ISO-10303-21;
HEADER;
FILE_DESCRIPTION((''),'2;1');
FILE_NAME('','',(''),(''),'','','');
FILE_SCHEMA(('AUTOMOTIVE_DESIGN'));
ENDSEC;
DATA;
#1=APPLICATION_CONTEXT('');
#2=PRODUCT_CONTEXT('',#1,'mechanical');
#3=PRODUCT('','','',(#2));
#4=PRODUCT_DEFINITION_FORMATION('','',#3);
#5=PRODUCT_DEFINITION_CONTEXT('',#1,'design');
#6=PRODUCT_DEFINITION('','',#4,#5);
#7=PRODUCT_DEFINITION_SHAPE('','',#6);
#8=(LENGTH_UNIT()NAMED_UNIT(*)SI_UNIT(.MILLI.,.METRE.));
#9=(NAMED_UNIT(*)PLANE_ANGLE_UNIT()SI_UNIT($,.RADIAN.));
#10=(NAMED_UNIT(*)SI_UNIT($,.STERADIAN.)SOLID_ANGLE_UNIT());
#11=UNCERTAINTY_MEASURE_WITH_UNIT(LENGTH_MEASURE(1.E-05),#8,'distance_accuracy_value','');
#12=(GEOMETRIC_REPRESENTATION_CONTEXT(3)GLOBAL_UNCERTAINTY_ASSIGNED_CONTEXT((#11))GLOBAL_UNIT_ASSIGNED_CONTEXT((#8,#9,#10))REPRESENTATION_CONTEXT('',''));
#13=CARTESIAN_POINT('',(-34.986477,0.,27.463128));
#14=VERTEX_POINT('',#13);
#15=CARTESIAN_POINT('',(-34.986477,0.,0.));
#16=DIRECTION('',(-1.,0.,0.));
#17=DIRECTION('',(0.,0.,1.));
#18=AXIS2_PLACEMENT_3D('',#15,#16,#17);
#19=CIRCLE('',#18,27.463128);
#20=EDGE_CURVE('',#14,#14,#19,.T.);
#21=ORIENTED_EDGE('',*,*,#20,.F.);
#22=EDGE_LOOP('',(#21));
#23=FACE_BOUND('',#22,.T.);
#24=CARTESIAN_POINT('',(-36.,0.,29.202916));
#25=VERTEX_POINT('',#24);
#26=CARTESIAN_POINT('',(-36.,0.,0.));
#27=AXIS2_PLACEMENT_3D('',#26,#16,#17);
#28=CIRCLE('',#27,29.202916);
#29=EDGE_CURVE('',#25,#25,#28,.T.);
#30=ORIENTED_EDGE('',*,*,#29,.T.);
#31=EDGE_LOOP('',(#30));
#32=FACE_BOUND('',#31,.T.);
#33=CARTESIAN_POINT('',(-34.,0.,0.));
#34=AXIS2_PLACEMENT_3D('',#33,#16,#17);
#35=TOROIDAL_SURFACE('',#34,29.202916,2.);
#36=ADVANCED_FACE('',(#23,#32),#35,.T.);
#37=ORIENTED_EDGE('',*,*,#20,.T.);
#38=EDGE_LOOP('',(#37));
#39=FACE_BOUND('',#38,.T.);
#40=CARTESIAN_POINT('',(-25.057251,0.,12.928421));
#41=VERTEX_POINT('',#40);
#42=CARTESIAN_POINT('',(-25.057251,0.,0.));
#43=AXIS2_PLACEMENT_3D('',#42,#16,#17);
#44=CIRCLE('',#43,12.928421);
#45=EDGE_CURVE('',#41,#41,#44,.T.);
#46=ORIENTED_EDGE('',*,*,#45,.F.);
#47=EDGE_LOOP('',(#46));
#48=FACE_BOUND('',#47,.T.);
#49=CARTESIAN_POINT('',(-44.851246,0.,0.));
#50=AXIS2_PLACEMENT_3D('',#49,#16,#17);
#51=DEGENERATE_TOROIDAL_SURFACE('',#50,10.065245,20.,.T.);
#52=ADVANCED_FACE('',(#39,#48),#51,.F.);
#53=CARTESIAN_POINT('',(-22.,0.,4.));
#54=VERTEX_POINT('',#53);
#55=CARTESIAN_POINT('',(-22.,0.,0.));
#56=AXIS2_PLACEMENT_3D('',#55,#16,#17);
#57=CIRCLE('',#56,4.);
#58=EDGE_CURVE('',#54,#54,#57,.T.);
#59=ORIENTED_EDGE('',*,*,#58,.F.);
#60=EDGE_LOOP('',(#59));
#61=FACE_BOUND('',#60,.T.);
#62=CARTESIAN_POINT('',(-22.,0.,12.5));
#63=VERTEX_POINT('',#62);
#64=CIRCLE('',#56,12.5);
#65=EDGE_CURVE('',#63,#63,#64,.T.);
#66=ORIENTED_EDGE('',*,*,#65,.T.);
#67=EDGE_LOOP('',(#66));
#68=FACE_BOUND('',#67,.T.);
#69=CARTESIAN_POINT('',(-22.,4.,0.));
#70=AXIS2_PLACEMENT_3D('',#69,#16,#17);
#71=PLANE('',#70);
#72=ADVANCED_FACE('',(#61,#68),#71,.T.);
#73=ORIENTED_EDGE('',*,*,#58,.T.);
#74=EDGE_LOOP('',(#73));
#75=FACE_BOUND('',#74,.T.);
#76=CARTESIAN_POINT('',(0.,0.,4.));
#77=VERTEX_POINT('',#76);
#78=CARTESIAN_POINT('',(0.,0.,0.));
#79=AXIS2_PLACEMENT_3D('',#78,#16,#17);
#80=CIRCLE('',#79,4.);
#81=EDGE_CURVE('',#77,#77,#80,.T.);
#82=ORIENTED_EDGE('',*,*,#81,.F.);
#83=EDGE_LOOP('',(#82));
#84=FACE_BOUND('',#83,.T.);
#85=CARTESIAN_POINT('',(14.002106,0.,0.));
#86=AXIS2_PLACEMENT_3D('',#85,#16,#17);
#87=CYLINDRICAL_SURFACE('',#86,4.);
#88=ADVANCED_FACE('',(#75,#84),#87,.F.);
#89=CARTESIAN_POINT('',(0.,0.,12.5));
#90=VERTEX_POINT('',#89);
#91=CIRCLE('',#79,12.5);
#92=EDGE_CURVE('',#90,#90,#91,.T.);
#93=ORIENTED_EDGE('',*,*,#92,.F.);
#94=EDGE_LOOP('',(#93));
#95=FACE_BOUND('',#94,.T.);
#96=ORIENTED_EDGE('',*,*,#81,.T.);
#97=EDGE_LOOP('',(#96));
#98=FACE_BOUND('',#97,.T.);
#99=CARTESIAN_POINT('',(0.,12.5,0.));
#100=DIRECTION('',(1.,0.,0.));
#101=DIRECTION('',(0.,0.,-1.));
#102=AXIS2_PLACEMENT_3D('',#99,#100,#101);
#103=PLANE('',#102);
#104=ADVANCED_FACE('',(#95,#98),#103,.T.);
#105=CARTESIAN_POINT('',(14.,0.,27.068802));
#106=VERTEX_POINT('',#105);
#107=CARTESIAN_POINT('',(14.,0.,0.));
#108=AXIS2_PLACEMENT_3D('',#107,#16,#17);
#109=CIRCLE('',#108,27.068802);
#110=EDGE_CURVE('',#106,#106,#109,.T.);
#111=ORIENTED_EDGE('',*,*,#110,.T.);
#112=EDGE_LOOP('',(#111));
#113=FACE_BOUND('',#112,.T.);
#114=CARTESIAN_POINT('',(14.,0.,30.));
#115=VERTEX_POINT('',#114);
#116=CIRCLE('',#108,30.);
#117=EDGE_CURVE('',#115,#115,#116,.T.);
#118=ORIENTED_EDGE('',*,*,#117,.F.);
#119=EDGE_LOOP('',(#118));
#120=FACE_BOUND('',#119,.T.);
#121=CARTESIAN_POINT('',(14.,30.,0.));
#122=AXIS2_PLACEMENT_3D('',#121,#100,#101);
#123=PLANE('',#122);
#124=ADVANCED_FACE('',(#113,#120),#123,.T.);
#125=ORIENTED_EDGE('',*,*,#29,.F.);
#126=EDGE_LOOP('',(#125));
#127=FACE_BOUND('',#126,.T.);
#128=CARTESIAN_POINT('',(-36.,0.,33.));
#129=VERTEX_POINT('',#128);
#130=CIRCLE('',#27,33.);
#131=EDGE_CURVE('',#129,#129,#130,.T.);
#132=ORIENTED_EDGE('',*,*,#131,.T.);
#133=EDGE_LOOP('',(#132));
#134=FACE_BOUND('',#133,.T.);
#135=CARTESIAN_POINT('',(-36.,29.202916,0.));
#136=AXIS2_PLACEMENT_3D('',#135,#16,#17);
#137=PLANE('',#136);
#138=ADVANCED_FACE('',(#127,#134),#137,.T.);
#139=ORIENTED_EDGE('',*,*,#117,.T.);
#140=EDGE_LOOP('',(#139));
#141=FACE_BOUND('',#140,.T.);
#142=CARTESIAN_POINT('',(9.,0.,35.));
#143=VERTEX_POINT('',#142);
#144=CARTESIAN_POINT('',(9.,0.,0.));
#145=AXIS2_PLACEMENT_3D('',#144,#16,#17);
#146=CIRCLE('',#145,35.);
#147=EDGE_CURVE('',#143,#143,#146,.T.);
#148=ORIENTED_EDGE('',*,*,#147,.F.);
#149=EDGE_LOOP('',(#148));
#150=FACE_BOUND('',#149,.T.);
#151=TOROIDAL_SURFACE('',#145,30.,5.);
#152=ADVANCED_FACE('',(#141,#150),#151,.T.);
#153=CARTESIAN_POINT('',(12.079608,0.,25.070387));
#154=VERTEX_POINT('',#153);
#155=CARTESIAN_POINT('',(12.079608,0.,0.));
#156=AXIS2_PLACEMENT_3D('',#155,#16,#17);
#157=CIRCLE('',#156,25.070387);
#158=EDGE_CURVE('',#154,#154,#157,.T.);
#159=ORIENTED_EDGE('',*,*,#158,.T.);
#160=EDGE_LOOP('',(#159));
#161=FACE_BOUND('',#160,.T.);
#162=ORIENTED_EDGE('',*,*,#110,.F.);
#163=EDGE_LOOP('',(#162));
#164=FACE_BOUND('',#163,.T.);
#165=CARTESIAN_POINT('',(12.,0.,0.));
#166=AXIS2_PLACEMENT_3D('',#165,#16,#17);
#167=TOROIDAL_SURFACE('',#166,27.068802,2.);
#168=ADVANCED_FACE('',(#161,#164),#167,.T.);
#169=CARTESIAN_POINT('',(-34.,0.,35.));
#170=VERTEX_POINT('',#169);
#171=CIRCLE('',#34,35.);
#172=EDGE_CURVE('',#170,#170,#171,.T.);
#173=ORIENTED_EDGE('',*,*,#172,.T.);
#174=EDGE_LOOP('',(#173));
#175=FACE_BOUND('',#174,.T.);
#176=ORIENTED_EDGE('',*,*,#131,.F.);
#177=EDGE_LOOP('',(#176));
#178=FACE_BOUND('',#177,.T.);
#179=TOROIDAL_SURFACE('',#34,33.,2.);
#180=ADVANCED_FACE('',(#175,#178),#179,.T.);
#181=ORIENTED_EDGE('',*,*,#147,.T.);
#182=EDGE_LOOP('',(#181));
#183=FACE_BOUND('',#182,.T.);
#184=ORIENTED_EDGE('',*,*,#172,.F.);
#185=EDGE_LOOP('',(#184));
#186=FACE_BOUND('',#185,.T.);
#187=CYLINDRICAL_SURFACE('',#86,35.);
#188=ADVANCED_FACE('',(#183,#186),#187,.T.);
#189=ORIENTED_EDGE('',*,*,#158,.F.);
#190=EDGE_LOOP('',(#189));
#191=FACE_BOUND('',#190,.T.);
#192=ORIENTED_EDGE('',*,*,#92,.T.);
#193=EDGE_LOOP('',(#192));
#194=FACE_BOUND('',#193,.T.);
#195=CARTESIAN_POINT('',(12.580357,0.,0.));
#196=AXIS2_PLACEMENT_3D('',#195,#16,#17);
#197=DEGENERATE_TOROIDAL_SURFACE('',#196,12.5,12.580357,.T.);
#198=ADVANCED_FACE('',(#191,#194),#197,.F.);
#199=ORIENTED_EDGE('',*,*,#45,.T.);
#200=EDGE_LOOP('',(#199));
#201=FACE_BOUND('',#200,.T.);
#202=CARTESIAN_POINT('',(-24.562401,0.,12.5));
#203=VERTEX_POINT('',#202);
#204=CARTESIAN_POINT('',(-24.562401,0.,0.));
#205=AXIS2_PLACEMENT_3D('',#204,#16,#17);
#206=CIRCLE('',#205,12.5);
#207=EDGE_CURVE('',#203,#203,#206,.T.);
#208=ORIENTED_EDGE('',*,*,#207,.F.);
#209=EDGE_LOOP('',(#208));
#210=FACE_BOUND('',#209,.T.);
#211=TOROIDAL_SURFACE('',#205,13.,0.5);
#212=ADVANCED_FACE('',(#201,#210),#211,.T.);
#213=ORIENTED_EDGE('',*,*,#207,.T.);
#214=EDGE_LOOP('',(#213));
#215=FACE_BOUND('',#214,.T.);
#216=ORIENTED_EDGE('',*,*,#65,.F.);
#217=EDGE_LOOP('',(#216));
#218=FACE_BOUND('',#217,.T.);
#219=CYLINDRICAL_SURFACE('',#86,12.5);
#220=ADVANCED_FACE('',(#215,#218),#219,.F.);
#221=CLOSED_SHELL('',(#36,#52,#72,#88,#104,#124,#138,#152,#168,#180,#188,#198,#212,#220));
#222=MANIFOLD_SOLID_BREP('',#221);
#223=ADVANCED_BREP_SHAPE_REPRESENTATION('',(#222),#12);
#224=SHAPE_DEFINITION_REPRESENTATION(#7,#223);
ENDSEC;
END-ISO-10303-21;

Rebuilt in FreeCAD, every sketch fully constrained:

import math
import FreeCAD as App
import Part
import Sketcher
from FreeCAD import Vector

doc = App.newDocument("Part")
body = doc.addObject("PartDesign::Body", "Body")

# Sketch on XY plane
sketch1 = body.newObject("Sketcher::SketchObject", "Sketch")
sketch1.AttachmentSupport = (doc.getObject("XY_Plane"), [""])
sketch1.MapMode = "FlatFace"
sketch1.addGeometry(Part.LineSegment(Vector(0, 4, 0), Vector(-22, 4, 0)), False)
sketch1.addGeometry(Part.LineSegment(Vector(-22, 4, 0), Vector(-22, 12.5, 0)), False)
sketch1.addGeometry(Part.LineSegment(Vector(-22, 12.5, 0), Vector(-24.6, 12.5, 0)), False)
sketch1.addGeometry(Part.ArcOfCircle(Part.Circle(Vector(-24.6, 13, 0), Vector(0, 0, 1), 0.5), math.radians(-172), math.radians(-90)), False)
sketch1.addGeometry(Part.ArcOfCircle(Part.Circle(Vector(-44.9, 10.1, 0), Vector(0, 0, 1), 20), math.radians(8), math.radians(60)), False)
sketch1.addGeometry(Part.ArcOfCircle(Part.Circle(Vector(-34, 29.2, 0), Vector(0, 0, 1), 2), math.radians(180), math.radians(240)), False)
sketch1.addGeometry(Part.LineSegment(Vector(-36, 29.2, 0), Vector(-36, 33, 0)), False)
sketch1.addGeometry(Part.ArcOfCircle(Part.Circle(Vector(-34, 33, 0), Vector(0, 0, 1), 2), math.radians(90), math.radians(180)), False)
sketch1.addGeometry(Part.LineSegment(Vector(-34, 35, 0), Vector(9, 35, 0)), False)
sketch1.addGeometry(Part.ArcOfCircle(Part.Circle(Vector(9, 30, 0), Vector(0, 0, 1), 5), math.radians(0), math.radians(90)), False)
sketch1.addGeometry(Part.LineSegment(Vector(14, 30, 0), Vector(14, 27.1, 0)), False)
sketch1.addGeometry(Part.ArcOfCircle(Part.Circle(Vector(12, 27.1, 0), Vector(0, 0, 1), 2), math.radians(-88), math.radians(0)), False)
sketch1.addGeometry(Part.ArcOfCircle(Part.Circle(Vector(12.6, 12.5, 0), Vector(0, 0, 1), 12.6), math.radians(92), math.radians(180)), False)
sketch1.addGeometry(Part.LineSegment(Vector(0, 12.5, 0), Vector(0, 4, 0)), False)
sketch1.addConstraint(Sketcher.Constraint("Coincident", 0, 2, 1, 1))
sketch1.addConstraint(Sketcher.Constraint("Coincident", 1, 2, 2, 1))
sketch1.addConstraint(Sketcher.Constraint("Tangent", 2, 2, 3, 2))
sketch1.addConstraint(Sketcher.Constraint("Tangent", 3, 1, 4, 1))
sketch1.addConstraint(Sketcher.Constraint("Tangent", 4, 2, 5, 2))
sketch1.addConstraint(Sketcher.Constraint("Tangent", 5, 1, 6, 1))
sketch1.addConstraint(Sketcher.Constraint("Tangent", 6, 2, 7, 2))
sketch1.addConstraint(Sketcher.Constraint("Tangent", 7, 1, 8, 1))
sketch1.addConstraint(Sketcher.Constraint("Tangent", 8, 2, 9, 2))
sketch1.addConstraint(Sketcher.Constraint("Tangent", 9, 1, 10, 1))
sketch1.addConstraint(Sketcher.Constraint("Tangent", 10, 2, 11, 2))
sketch1.addConstraint(Sketcher.Constraint("Tangent", 11, 1, 12, 1))
sketch1.addConstraint(Sketcher.Constraint("Tangent", 12, 2, 13, 1))
sketch1.addConstraint(Sketcher.Constraint("Coincident", 13, 2, 0, 1))
sketch1.addConstraint(Sketcher.Constraint("Horizontal", 0))
sketch1.addConstraint(Sketcher.Constraint("Vertical", 1))
sketch1.addConstraint(Sketcher.Constraint("Horizontal", 2))
sketch1.addConstraint(Sketcher.Constraint("Vertical", 6))
sketch1.addConstraint(Sketcher.Constraint("Horizontal", 8))
sketch1.addConstraint(Sketcher.Constraint("Vertical", 10))
sketch1.addConstraint(Sketcher.Constraint("Vertical", 13))
sketch1.addConstraint(Sketcher.Constraint("Equal", 5, 7))
sketch1.addConstraint(Sketcher.Constraint("Equal", 7, 11))
sketch1.addConstraint(Sketcher.Constraint("PointOnObject", 12, 2, -2))
sketch1.addConstraint(Sketcher.Constraint("Horizontal", 12, 3, 1, 2))
sketch1.addConstraint(Sketcher.Constraint("Radius", 4, 20.0))
sketch1.addConstraint(Sketcher.Constraint("Radius", 5, 2.0))
sketch1.addConstraint(Sketcher.Constraint("Radius", 9, 5.0))
sketch1.addConstraint(Sketcher.Constraint("Radius", 3, 0.5))
sketch1.addConstraint(Sketcher.Constraint("DistanceX", 0, 2, 0, 1, 22.0))
sketch1.addConstraint(Sketcher.Constraint("DistanceX", 8, 1, 8, 2, 43.0))
sketch1.addConstraint(Sketcher.Constraint("DistanceY", 1, 1, 1, 2, 8.5))
sketch1.addConstraint(Sketcher.Constraint("DistanceY", -1, 1, 3, 3, 13.0))
sketch1.addConstraint(Sketcher.Constraint("DistanceX", 5, 3, -1, 1, 34.0))
sketch1.addConstraint(Sketcher.Constraint("DistanceY", -1, 1, 7, 3, 33.0))
sketch1.addConstraint(Sketcher.Constraint("DistanceX", 2, 2, 2, 1, 2.562401))
sketch1.addConstraint(Sketcher.Constraint("Radius", 12, 12.580357))
sketch1.addConstraint(Sketcher.Constraint("DistanceY", 6, 1, 6, 2, 3.797084))
revolution = body.newObject("PartDesign::Revolution", "Revolution")
revolution.Profile = sketch1
revolution.ReferenceAxis = (sketch1, ["H_Axis"])
revolution.Angle = 360

doc.recompute()
